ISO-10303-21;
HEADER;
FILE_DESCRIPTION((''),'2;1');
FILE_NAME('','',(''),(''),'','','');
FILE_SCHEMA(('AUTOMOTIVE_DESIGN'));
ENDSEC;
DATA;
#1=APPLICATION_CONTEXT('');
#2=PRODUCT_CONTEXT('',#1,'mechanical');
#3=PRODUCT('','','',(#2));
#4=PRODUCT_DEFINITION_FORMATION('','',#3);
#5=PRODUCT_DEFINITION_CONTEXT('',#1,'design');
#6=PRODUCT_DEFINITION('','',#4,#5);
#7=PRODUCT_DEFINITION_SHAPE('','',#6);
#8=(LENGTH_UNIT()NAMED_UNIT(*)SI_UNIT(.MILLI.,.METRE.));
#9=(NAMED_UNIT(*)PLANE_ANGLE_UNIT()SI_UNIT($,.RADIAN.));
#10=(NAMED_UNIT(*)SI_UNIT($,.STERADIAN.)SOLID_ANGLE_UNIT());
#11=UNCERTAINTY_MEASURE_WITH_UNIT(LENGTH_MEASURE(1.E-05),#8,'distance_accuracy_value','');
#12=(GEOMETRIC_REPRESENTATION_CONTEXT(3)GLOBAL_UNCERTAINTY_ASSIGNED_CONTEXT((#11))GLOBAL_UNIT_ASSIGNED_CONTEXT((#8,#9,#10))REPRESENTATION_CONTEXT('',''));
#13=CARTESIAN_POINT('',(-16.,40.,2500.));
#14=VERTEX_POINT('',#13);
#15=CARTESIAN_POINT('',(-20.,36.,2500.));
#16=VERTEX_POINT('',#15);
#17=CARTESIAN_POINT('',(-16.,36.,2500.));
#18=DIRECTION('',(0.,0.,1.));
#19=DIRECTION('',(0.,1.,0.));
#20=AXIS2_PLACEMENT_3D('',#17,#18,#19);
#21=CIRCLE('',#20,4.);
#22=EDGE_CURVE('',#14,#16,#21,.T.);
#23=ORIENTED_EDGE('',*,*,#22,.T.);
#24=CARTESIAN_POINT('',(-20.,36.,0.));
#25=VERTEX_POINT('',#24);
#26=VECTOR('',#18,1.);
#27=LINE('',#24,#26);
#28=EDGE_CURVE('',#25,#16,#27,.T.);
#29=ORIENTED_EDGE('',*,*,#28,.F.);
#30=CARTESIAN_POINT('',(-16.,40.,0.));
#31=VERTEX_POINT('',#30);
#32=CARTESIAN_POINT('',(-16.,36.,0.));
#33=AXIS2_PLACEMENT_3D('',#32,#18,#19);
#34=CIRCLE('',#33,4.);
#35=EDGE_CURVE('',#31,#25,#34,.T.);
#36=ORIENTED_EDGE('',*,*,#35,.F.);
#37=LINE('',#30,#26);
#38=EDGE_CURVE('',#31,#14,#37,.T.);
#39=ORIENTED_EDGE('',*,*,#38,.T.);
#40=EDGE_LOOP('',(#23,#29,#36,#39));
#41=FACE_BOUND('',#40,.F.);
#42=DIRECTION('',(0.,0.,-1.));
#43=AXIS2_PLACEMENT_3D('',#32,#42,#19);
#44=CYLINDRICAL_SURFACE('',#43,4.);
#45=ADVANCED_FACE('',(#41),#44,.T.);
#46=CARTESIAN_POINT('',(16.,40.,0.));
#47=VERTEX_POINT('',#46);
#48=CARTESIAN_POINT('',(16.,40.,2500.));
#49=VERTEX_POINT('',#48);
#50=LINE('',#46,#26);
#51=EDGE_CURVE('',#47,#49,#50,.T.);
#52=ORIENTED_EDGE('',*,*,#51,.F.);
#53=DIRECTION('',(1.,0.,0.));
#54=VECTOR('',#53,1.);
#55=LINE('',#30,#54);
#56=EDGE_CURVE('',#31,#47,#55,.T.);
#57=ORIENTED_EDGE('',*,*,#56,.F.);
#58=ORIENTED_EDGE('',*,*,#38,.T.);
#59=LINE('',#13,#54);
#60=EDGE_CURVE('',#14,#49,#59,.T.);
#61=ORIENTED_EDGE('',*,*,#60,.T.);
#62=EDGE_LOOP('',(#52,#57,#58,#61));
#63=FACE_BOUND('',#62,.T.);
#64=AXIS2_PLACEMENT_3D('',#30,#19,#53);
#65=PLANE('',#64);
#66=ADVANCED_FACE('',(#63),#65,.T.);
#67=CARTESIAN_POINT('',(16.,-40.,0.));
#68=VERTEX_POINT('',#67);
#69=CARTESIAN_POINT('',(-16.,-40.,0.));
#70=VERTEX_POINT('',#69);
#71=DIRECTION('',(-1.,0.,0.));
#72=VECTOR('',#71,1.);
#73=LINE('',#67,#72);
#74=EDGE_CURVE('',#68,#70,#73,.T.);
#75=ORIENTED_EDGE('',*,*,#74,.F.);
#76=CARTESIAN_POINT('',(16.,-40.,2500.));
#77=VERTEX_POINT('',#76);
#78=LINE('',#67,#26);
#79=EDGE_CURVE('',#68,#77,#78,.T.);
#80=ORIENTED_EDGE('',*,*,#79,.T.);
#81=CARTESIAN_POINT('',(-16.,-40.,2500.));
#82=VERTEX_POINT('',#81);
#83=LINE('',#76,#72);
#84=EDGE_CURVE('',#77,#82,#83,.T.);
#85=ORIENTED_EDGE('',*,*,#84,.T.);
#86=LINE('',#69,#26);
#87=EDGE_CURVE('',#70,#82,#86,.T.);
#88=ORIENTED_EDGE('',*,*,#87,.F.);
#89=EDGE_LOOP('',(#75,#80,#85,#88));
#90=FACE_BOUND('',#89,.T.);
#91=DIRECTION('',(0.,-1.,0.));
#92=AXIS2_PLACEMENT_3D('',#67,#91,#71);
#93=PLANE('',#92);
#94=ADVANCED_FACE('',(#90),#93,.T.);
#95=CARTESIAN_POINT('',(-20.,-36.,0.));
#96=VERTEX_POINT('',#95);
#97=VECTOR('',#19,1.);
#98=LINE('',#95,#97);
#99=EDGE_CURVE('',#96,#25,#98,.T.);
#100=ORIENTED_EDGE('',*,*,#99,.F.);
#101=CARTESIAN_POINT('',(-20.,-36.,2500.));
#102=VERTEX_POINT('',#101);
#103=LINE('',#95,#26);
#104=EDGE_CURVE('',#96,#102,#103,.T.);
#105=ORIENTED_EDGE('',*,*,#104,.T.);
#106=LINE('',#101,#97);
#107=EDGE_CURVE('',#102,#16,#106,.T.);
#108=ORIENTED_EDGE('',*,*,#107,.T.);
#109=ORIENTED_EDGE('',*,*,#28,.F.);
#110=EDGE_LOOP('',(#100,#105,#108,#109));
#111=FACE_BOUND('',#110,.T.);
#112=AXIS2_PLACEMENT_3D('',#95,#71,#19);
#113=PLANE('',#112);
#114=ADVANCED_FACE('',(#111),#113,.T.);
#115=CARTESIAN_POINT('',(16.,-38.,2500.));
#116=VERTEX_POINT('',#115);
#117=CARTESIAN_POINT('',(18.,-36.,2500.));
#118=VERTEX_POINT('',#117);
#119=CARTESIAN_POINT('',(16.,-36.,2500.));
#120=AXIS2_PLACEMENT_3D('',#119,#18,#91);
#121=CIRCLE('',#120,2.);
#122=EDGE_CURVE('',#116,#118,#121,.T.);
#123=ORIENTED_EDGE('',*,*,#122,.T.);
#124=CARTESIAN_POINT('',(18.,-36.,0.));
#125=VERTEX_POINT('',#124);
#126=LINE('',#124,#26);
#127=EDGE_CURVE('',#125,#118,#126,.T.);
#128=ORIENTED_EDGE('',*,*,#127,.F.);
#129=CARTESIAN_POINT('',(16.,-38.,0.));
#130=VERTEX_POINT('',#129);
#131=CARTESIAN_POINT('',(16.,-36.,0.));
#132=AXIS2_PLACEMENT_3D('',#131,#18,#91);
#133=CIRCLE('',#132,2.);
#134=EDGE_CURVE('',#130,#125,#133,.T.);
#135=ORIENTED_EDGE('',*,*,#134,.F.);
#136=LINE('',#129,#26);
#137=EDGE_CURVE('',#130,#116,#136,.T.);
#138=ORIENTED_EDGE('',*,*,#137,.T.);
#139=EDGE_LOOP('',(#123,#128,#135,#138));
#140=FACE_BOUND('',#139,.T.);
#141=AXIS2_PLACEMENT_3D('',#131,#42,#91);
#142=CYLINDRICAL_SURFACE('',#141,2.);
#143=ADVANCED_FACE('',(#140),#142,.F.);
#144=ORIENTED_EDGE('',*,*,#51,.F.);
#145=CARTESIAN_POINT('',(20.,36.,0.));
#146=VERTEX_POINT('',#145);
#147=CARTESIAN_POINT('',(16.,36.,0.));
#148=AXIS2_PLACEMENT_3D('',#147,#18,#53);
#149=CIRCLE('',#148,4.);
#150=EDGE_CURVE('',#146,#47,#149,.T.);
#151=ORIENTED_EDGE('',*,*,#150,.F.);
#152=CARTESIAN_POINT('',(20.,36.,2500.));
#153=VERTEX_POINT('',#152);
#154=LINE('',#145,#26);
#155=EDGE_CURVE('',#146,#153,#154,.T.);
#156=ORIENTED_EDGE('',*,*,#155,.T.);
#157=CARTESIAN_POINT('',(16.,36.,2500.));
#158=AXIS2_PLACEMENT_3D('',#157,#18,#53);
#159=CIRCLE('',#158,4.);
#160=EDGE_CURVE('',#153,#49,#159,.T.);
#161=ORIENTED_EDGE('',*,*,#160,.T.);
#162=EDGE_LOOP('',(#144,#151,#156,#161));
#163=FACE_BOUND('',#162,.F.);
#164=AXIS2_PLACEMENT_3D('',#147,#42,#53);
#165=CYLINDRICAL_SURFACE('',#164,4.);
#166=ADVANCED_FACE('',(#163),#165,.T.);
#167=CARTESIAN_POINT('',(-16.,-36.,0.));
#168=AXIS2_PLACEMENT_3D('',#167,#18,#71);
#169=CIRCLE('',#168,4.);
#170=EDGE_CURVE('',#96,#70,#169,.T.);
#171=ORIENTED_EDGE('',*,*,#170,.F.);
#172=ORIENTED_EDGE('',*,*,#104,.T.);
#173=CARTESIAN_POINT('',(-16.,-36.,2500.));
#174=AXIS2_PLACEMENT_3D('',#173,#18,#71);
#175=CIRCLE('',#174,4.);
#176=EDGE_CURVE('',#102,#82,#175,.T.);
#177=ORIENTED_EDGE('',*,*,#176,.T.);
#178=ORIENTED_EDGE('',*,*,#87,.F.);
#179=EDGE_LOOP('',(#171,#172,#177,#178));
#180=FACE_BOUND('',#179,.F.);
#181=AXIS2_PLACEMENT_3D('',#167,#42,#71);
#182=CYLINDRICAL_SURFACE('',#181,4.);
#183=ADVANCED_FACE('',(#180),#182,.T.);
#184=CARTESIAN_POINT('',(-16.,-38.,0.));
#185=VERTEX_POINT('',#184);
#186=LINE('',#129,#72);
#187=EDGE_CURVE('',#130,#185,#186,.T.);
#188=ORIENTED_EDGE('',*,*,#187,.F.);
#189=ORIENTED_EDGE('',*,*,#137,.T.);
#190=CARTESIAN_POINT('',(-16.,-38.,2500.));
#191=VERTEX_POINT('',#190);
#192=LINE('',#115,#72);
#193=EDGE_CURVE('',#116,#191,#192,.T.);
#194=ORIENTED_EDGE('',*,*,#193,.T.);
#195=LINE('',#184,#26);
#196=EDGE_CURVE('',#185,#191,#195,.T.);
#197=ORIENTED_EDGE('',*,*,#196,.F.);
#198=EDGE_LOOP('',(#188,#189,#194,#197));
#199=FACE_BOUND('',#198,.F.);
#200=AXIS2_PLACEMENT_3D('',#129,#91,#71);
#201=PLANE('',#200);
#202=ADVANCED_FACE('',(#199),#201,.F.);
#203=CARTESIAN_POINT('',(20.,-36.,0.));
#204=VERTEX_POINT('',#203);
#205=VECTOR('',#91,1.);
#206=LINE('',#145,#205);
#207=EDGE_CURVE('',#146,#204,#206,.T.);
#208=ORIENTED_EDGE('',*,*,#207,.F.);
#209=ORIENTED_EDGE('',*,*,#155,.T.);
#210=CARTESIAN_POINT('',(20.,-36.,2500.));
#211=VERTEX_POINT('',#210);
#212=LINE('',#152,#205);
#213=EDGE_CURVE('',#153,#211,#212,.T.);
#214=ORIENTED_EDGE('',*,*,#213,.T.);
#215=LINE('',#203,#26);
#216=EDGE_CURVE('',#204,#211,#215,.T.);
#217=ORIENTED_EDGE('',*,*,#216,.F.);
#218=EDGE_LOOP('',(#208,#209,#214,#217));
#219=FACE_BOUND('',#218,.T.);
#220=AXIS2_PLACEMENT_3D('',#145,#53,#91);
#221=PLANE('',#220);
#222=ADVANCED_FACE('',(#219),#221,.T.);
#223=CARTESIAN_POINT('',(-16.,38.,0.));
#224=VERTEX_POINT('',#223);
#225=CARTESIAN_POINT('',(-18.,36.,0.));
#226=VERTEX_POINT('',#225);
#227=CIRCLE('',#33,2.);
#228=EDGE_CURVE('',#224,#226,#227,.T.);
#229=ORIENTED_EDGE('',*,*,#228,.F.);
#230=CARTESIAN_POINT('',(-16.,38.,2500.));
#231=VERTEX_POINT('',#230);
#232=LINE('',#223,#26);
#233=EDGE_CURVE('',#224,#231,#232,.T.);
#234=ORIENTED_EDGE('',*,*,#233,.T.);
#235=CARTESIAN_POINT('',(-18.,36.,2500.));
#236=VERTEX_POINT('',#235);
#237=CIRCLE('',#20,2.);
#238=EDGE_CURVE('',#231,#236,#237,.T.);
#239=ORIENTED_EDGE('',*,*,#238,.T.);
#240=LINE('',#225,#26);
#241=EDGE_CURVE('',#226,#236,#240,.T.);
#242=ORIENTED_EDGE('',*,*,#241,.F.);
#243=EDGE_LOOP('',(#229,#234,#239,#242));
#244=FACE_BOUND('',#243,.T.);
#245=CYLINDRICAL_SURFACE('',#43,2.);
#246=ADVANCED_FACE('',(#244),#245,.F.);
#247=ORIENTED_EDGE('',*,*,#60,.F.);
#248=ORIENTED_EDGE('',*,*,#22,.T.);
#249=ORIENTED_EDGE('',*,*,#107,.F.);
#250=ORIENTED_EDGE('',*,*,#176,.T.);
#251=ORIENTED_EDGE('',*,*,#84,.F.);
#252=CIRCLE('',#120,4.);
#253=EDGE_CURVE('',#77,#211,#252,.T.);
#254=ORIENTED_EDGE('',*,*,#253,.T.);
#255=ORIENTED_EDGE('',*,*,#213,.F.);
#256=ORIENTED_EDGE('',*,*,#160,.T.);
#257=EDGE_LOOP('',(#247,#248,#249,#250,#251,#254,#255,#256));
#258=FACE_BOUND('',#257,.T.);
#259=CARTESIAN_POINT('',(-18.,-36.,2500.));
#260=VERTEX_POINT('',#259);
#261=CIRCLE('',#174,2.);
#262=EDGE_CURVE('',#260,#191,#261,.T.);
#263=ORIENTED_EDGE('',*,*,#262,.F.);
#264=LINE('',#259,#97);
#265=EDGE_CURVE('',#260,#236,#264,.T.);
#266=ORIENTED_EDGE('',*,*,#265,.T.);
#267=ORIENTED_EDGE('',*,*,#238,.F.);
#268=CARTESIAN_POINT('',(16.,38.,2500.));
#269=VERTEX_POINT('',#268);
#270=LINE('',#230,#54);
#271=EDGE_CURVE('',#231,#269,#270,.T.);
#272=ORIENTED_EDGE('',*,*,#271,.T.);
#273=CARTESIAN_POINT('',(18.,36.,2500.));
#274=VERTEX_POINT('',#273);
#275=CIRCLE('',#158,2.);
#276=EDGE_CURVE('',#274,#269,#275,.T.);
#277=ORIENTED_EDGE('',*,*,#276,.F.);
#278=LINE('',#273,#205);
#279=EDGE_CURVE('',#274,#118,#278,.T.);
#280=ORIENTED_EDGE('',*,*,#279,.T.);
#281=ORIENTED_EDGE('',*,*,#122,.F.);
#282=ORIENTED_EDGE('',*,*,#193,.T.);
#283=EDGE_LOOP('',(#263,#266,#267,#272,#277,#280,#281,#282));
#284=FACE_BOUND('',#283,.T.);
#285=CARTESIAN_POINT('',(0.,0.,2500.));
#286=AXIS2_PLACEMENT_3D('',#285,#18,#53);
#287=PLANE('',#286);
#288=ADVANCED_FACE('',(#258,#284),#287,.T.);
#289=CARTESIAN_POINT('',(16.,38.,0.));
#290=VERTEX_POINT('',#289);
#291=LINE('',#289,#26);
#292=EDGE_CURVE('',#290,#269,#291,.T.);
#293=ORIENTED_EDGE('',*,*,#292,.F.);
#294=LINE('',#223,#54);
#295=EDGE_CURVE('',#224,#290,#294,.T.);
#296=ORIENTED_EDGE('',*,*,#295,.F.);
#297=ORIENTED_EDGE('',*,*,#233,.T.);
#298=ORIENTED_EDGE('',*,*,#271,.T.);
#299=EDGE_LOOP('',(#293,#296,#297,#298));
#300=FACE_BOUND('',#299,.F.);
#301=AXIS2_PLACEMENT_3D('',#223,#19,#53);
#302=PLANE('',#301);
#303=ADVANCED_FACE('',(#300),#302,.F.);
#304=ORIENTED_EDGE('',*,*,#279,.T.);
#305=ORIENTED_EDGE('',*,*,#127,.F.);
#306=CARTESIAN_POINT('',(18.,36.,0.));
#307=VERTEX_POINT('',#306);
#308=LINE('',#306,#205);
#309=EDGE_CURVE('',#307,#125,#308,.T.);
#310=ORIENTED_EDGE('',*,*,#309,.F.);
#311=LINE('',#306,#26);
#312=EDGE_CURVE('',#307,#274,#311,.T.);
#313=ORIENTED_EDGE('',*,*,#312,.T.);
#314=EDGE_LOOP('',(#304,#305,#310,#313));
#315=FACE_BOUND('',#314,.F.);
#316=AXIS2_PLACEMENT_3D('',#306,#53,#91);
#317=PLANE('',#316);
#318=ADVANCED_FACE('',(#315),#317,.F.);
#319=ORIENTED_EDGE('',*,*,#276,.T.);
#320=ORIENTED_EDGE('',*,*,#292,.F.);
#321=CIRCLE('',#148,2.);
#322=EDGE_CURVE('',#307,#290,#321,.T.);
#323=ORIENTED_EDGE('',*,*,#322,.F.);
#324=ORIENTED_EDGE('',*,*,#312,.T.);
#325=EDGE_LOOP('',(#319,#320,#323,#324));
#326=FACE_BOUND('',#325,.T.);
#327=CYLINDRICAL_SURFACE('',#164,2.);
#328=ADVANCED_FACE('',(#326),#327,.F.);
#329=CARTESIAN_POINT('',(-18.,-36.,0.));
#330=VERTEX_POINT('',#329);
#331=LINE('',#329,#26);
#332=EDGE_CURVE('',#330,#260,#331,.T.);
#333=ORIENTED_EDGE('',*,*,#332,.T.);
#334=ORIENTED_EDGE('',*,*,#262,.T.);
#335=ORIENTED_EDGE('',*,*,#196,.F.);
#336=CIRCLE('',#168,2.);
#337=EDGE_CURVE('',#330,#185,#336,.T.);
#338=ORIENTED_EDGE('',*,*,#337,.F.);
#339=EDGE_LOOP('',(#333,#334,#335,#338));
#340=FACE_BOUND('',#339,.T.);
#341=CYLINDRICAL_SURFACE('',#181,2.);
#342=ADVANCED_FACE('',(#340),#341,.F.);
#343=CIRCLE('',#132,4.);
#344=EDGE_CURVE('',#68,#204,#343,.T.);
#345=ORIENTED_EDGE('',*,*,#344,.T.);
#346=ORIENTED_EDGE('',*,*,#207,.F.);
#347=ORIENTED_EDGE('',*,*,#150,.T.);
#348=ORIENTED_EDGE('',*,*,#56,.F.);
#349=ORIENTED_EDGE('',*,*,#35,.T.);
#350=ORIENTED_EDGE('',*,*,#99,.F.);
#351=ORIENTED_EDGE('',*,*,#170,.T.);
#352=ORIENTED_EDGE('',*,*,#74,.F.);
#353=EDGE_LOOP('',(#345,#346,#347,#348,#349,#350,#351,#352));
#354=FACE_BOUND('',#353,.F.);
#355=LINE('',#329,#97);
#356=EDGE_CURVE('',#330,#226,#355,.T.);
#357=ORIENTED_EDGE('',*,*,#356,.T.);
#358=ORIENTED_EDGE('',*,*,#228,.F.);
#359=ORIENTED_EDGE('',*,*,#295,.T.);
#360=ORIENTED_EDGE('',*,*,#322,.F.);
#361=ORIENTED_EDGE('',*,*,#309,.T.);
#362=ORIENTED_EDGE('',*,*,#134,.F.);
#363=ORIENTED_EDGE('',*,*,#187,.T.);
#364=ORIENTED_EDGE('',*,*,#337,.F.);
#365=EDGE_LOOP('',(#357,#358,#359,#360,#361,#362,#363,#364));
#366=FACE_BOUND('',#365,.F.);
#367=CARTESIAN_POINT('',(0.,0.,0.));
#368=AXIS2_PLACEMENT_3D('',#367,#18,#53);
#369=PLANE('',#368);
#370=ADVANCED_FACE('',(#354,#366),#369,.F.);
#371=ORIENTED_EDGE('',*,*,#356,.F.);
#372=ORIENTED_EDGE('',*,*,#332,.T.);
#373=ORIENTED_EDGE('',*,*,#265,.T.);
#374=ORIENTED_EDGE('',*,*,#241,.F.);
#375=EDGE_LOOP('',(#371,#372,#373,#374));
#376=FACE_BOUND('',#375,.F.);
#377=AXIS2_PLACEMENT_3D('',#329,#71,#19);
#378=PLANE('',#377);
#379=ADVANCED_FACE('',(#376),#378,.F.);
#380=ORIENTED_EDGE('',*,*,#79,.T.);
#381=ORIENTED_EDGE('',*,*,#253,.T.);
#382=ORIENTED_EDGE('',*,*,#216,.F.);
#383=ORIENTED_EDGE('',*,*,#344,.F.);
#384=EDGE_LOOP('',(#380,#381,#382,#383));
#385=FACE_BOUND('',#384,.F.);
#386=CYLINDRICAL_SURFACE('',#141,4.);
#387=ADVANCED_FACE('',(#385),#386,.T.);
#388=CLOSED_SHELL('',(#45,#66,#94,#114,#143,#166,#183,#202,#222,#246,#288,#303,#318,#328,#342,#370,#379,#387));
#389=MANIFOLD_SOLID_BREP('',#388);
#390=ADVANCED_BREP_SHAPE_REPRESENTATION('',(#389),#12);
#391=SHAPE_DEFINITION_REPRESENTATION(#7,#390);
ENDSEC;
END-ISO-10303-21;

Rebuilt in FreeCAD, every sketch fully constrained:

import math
import FreeCAD as App
import Part
import Sketcher

V = App.Vector
Q = App.Units.Quantity

doc = App.newDocument("Part")
body = doc.addObject("PartDesign::Body", "Body")

# Sketch on XY plane
sketch1 = doc.addObject("Sketcher::SketchObject", "Sketch")
body.addObject(sketch1)
sketch1.AttachmentSupport = (doc.XY_Plane, [""])
sketch1.MapMode = "FlatFace"
sketch1.addGeometry([
    Part.LineSegment(V(-20, 36, 0), V(-20, -36, 0)),  # 0
    Part.ArcOfCircle(Part.Circle(V(-16, -36, 0), V(0, 0, 1), 4), math.radians(180), math.radians(270)),  # 1
    Part.LineSegment(V(-16, -40, 0), V(16, -40, 0)),  # 2
    Part.ArcOfCircle(Part.Circle(V(16, -36, 0), V(0, 0, 1), 4), math.radians(-90), math.radians(0)),  # 3
    Part.LineSegment(V(20, -36, 0), V(20, 36, 0)),  # 4
    Part.ArcOfCircle(Part.Circle(V(16, 36, 0), V(0, 0, 1), 4), math.radians(0), math.radians(90)),  # 5
    Part.LineSegment(V(16, 40, 0), V(-16, 40, 0)),  # 6
    Part.ArcOfCircle(Part.Circle(V(-16, 36, 0), V(0, 0, 1), 4), math.radians(90), math.radians(180)),  # 7
    Part.ArcOfCircle(Part.Circle(V(-16, 36, 0), V(0, 0, 1), 2), math.radians(90), math.radians(180)),  # 8
    Part.LineSegment(V(-16, 38, 0), V(16, 38, 0)),  # 9
    Part.ArcOfCircle(Part.Circle(V(16, 36, 0), V(0, 0, 1), 2), math.radians(0), math.radians(90)),  # 10
    Part.LineSegment(V(18, 36, 0), V(18, -36, 0)),  # 11
    Part.ArcOfCircle(Part.Circle(V(16, -36, 0), V(0, 0, 1), 2), math.radians(-90), math.radians(0)),  # 12
    Part.LineSegment(V(16, -38, 0), V(-16, -38, 0)),  # 13
    Part.ArcOfCircle(Part.Circle(V(-16, -36, 0), V(0, 0, 1), 2), math.radians(180), math.radians(270)),  # 14
    Part.LineSegment(V(-18, -36, 0), V(-18, 36, 0)),  # 15
], False)
sketch1.addConstraint([
    Sketcher.Constraint("Tangent", 0, 2, 1, 1),
    Sketcher.Constraint("Tangent", 1, 2, 2, 1),
    Sketcher.Constraint("Tangent", 2, 2, 3, 1),
    Sketcher.Constraint("Tangent", 3, 2, 4, 1),
    Sketcher.Constraint("Tangent", 4, 2, 5, 1),
    Sketcher.Constraint("Tangent", 5, 2, 6, 1),
    Sketcher.Constraint("Tangent", 6, 2, 7, 1),
    Sketcher.Constraint("Tangent", 7, 2, 0, 1),
    Sketcher.Constraint("Tangent", 8, 1, 9, 1),
    Sketcher.Constraint("Tangent", 9, 2, 10, 2),
    Sketcher.Constraint("Tangent", 10, 1, 11, 1),
    Sketcher.Constraint("Tangent", 11, 2, 12, 2),
    Sketcher.Constraint("Tangent", 12, 1, 13, 1),
    Sketcher.Constraint("Tangent", 13, 2, 14, 2),
    Sketcher.Constraint("Tangent", 14, 1, 15, 1),
    Sketcher.Constraint("Tangent", 15, 2, 8, 2),
    Sketcher.Constraint("Vertical", 0),
    Sketcher.Constraint("Horizontal", 2),
    Sketcher.Constraint("Vertical", 4),
    Sketcher.Constraint("Horizontal", 6),
    Sketcher.Constraint("Horizontal", 9),
    Sketcher.Constraint("Vertical", 11),
    Sketcher.Constraint("Horizontal", 13),
    Sketcher.Constraint("Vertical", 15),
    Sketcher.Constraint("Coincident", 8, 3, 7, 3),
    Sketcher.Constraint("Coincident", 10, 3, 5, 3),
    Sketcher.Constraint("Coincident", 12, 3, 3, 3),
    Sketcher.Constraint("Equal", 1, 3),
    Sketcher.Constraint("Equal", 3, 5),
    Sketcher.Constraint("Equal", 5, 7),
    Sketcher.Constraint("Equal", 12, 14),
    Sketcher.Constraint("Symmetric", 1, 3, 5, 3, -1, 1),
    Sketcher.Constraint("Radius", 1, Q("4 mm")),
    Sketcher.Constraint("Radius", 8, Q("2 mm")),
    Sketcher.Constraint("DistanceX", 0, 2, -1, 1, Q("20 mm")),
    Sketcher.Constraint("DistanceY", 1, 2, -1, 1, Q("40 mm")),
])
pad1 = doc.addObject("PartDesign::Pad", "Pad")
body.addObject(pad1)
pad1.Profile = sketch1
pad1.Length = 2500

doc.recompute()
